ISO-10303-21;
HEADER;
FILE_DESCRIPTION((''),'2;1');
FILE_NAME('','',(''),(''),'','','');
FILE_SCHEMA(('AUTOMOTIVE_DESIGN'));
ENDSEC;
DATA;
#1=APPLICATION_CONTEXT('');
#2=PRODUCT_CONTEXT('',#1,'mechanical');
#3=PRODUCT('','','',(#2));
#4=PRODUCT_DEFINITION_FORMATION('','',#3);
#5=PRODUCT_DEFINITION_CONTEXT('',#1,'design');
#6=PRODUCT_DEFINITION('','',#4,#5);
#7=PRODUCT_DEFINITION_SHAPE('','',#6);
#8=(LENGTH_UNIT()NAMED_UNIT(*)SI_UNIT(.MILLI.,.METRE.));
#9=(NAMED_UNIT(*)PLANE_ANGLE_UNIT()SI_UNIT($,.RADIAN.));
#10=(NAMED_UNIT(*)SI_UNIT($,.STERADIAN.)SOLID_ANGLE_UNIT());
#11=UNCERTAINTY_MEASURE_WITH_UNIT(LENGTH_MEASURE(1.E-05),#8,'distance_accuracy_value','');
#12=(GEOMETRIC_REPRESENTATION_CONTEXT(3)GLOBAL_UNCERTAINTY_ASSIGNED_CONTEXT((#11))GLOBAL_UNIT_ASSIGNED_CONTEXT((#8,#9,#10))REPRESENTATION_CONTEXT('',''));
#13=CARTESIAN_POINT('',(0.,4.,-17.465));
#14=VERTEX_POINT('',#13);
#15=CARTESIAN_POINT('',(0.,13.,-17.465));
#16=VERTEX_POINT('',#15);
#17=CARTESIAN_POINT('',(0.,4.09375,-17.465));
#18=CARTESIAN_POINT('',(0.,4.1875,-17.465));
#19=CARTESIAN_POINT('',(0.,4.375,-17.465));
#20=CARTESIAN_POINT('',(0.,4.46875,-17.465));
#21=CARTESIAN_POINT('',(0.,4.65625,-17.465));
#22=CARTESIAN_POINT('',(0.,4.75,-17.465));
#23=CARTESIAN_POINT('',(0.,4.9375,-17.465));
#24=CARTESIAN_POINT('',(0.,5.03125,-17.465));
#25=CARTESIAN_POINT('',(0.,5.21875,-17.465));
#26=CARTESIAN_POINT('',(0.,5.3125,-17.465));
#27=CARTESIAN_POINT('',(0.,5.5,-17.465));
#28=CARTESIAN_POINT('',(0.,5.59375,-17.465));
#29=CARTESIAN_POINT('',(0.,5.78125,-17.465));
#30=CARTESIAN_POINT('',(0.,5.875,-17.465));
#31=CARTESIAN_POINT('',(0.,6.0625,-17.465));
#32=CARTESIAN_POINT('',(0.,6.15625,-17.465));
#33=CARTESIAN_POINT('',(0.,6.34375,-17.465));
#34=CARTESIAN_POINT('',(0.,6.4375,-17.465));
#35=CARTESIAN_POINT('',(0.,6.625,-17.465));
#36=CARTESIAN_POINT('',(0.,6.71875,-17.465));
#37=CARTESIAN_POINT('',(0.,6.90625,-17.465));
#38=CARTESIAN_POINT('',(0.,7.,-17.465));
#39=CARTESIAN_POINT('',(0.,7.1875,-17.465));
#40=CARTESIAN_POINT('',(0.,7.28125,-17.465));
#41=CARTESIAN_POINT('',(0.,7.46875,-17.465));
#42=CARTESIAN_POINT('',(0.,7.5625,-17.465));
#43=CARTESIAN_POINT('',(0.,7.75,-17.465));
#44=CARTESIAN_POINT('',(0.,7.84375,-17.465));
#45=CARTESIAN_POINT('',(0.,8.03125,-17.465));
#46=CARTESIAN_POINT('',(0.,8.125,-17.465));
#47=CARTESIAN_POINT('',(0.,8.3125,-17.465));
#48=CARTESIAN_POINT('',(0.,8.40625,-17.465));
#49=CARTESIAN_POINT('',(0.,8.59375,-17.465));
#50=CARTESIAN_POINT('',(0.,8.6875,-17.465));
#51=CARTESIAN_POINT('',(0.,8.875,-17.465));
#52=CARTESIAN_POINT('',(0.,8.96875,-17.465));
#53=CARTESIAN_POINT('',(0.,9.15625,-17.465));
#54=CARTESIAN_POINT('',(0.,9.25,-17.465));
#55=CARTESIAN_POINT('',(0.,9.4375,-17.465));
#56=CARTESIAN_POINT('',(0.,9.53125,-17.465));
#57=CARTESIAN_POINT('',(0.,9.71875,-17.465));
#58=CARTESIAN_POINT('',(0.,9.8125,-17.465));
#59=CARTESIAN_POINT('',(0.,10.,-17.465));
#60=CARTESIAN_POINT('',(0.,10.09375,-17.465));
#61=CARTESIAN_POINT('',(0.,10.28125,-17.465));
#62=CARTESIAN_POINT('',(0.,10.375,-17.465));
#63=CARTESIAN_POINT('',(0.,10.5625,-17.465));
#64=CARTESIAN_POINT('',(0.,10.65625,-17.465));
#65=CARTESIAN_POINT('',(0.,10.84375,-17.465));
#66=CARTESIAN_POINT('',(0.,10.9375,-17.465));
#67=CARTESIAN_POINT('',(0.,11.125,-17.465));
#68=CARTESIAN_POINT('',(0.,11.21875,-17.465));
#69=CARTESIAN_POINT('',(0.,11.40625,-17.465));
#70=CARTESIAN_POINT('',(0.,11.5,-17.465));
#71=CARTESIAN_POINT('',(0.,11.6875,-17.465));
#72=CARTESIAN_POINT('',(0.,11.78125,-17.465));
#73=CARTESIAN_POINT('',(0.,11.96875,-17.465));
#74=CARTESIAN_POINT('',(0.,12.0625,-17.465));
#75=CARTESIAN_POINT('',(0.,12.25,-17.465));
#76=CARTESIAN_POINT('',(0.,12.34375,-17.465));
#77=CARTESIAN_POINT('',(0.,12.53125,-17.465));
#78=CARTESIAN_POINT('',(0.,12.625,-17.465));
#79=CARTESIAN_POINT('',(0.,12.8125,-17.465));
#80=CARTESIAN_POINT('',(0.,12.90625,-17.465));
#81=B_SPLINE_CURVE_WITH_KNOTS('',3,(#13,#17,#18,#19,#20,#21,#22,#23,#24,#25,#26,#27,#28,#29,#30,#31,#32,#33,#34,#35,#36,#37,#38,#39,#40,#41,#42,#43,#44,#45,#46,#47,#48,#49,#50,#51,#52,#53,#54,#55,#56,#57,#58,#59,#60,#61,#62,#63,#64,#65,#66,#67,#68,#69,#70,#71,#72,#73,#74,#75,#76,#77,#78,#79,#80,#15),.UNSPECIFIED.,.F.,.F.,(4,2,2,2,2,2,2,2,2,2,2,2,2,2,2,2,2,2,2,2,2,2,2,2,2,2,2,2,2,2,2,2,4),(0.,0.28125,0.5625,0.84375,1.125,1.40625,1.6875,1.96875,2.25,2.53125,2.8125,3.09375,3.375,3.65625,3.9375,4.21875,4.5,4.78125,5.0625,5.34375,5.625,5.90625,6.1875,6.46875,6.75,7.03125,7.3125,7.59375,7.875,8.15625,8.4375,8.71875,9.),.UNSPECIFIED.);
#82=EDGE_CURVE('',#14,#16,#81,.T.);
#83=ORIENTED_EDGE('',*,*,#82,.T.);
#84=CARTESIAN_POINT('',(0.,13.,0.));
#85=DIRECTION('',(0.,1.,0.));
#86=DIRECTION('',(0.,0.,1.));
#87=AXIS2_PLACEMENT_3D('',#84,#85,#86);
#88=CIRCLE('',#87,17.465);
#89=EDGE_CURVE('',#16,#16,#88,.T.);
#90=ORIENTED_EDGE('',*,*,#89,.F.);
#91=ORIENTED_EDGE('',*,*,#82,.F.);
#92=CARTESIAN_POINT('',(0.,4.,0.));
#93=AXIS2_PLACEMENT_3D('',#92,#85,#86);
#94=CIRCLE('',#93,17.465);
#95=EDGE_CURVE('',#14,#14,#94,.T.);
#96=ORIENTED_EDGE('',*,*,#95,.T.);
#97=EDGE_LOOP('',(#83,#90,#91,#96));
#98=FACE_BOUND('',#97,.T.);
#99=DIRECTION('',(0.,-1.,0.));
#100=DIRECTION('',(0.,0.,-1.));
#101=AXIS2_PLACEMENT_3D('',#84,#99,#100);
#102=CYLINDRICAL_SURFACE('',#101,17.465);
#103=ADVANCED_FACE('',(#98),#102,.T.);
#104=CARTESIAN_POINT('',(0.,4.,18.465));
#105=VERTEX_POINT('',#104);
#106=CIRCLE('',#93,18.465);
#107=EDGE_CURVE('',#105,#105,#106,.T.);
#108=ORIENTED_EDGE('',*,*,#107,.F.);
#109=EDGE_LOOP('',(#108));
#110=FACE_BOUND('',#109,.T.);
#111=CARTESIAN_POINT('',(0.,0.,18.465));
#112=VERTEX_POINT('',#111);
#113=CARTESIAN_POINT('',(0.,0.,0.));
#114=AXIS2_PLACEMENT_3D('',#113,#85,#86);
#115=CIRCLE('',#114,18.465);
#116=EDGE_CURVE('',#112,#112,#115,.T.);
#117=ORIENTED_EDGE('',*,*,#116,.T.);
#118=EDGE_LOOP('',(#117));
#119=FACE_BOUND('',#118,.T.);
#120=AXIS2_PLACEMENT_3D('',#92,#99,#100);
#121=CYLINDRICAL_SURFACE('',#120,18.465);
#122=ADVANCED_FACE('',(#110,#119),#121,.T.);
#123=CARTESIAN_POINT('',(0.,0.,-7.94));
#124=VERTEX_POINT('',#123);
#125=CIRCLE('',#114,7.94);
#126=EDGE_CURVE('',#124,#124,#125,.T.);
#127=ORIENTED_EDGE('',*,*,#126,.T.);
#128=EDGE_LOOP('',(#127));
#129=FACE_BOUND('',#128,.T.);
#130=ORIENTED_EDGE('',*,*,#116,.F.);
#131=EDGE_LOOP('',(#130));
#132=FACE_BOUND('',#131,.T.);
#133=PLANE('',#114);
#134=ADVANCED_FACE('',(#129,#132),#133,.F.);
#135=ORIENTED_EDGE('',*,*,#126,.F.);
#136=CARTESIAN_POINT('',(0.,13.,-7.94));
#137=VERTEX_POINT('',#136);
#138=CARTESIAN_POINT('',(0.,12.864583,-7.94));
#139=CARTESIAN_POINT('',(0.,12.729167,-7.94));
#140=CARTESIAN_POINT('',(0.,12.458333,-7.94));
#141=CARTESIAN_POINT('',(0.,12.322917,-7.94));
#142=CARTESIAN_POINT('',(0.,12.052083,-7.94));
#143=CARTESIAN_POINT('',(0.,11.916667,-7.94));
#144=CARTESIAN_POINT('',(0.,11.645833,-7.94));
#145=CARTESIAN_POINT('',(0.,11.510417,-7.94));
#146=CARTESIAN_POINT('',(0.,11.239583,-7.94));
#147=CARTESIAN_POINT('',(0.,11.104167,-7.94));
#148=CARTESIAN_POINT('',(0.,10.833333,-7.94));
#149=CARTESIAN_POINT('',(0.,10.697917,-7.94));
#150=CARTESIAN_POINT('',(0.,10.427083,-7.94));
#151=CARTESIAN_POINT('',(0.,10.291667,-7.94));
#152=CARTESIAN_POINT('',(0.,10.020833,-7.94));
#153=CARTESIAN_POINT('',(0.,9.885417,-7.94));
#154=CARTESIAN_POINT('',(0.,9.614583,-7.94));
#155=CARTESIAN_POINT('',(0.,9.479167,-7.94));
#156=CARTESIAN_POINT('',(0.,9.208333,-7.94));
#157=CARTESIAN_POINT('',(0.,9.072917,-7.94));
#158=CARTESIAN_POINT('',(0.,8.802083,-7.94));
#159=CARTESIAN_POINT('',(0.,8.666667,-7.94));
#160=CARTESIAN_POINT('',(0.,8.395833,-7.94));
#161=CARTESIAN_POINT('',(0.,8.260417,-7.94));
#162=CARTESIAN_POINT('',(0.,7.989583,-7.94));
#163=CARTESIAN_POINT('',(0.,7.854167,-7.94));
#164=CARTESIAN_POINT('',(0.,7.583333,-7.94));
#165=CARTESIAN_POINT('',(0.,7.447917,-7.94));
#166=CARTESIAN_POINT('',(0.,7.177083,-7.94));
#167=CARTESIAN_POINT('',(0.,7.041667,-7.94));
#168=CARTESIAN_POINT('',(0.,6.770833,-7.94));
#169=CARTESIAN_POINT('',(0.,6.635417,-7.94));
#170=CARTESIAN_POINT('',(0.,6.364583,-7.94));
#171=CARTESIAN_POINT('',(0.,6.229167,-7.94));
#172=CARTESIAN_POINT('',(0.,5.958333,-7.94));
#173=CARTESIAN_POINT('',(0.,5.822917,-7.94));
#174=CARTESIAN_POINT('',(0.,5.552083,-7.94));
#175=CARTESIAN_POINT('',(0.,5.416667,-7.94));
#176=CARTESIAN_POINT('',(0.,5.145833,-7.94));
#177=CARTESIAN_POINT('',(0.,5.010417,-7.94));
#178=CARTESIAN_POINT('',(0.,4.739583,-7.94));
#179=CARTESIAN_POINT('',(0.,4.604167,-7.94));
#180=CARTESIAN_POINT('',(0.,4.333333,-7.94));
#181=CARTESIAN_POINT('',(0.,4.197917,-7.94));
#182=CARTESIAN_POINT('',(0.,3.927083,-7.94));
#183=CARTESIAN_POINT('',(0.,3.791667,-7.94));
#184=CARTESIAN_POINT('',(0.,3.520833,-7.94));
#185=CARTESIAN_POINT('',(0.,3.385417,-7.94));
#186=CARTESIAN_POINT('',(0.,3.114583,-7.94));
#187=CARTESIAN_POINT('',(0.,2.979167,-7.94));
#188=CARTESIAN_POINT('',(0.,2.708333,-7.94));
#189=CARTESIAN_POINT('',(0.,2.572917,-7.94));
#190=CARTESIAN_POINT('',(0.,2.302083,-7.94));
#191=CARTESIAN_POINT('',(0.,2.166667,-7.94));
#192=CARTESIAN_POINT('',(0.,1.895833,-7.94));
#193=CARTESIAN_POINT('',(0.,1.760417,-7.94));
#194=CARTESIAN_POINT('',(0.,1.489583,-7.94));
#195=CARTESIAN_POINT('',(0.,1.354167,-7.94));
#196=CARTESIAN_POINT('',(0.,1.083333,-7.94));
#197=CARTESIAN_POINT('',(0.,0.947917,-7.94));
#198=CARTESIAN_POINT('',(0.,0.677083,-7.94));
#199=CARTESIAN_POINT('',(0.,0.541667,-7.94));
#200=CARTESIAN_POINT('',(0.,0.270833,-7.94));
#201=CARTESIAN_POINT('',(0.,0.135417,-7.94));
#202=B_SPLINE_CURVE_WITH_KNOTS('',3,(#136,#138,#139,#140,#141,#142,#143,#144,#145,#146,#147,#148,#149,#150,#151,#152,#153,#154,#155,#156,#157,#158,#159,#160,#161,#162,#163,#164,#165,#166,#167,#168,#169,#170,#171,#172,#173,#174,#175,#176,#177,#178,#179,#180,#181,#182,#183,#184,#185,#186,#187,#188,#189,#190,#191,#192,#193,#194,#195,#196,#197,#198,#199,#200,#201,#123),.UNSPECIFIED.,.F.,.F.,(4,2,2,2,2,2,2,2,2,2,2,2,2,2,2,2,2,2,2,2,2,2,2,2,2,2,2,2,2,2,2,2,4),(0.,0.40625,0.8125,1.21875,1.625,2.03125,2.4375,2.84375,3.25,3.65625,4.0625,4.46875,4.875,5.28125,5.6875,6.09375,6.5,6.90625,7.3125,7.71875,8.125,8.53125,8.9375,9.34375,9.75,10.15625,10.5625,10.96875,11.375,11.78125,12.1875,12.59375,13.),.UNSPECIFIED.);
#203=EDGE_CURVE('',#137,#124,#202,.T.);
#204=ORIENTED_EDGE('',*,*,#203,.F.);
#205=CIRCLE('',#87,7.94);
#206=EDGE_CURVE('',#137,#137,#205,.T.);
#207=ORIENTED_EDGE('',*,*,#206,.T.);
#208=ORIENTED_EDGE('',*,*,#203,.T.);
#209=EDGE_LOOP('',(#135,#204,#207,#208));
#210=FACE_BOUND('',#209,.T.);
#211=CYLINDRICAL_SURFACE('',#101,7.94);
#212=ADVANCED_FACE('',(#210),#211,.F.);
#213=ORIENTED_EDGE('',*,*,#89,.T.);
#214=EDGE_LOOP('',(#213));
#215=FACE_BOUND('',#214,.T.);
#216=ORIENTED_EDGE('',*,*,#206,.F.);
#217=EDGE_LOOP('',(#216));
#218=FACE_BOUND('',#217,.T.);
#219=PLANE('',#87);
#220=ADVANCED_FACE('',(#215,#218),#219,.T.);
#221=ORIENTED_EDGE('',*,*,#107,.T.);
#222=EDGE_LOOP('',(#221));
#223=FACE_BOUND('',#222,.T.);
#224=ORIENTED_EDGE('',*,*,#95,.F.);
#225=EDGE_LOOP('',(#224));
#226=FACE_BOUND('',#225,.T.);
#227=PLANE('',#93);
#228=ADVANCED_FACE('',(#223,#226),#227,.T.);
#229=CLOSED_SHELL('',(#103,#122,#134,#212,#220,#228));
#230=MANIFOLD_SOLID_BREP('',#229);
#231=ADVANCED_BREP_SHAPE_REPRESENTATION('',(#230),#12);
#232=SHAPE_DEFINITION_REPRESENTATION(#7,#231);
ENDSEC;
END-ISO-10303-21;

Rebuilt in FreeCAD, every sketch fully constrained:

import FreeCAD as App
import Part
import Sketcher
Q = App.Units.Quantity

doc = App.newDocument("Part")
body = doc.addObject("PartDesign::Body", "Body")

# Sketch on XZ plane
sketch1 = doc.addObject("Sketcher::SketchObject", "Sketch")
body.addObject(sketch1)
sketch1.AttachmentSupport = (doc.XZ_Plane, [""])
sketch1.MapMode = "FlatFace"
sketch1.addGeometry([
    Part.Circle(App.Vector(0, 0, 0), App.Vector(0, 0, 1), 17.465),
    Part.Circle(App.Vector(0, 0, 0), App.Vector(0, 0, 1), 7.94),
], False)
sketch1.addConstraint([
    Sketcher.Constraint("Coincident", 0, 3, -1, 1),
    Sketcher.Constraint("Coincident", 1, 3, -1, 1),
    Sketcher.Constraint("Diameter", 0, Q("34.93 mm")),
    Sketcher.Constraint("Diameter", 1, Q("15.88 mm")),
])
pad1 = doc.addObject("PartDesign::Pad", "Pad")
body.addObject(pad1)
pad1.Profile = sketch1
pad1.Length = 13
pad1.Reversed = True

# Sketch on XZ plane
sketch2 = doc.addObject("Sketcher::SketchObject", "Sketch001")
body.addObject(sketch2)
sketch2.AttachmentSupport = (doc.XZ_Plane, [""])
sketch2.MapMode = "FlatFace"
sketch2.addGeometry([
    Part.Circle(App.Vector(0, 0, 0), App.Vector(0, 0, 1), 18.465),
    Part.Circle(App.Vector(0, 0, 0), App.Vector(0, 0, 1), 7.94),
], False)
sketch2.addConstraint([
    Sketcher.Constraint("Coincident", 0, 3, -1, 1),
    Sketcher.Constraint("Coincident", 1, 3, -1, 1),
    Sketcher.Constraint("Diameter", 0, Q("36.93 mm")),
    Sketcher.Constraint("Diameter", 1, Q("15.88 mm")),
])
pad2 = doc.addObject("PartDesign::Pad", "Pad001")
body.addObject(pad2)
pad2.Profile = sketch2
pad2.Length = 4
pad2.Reversed = True

doc.recompute()
